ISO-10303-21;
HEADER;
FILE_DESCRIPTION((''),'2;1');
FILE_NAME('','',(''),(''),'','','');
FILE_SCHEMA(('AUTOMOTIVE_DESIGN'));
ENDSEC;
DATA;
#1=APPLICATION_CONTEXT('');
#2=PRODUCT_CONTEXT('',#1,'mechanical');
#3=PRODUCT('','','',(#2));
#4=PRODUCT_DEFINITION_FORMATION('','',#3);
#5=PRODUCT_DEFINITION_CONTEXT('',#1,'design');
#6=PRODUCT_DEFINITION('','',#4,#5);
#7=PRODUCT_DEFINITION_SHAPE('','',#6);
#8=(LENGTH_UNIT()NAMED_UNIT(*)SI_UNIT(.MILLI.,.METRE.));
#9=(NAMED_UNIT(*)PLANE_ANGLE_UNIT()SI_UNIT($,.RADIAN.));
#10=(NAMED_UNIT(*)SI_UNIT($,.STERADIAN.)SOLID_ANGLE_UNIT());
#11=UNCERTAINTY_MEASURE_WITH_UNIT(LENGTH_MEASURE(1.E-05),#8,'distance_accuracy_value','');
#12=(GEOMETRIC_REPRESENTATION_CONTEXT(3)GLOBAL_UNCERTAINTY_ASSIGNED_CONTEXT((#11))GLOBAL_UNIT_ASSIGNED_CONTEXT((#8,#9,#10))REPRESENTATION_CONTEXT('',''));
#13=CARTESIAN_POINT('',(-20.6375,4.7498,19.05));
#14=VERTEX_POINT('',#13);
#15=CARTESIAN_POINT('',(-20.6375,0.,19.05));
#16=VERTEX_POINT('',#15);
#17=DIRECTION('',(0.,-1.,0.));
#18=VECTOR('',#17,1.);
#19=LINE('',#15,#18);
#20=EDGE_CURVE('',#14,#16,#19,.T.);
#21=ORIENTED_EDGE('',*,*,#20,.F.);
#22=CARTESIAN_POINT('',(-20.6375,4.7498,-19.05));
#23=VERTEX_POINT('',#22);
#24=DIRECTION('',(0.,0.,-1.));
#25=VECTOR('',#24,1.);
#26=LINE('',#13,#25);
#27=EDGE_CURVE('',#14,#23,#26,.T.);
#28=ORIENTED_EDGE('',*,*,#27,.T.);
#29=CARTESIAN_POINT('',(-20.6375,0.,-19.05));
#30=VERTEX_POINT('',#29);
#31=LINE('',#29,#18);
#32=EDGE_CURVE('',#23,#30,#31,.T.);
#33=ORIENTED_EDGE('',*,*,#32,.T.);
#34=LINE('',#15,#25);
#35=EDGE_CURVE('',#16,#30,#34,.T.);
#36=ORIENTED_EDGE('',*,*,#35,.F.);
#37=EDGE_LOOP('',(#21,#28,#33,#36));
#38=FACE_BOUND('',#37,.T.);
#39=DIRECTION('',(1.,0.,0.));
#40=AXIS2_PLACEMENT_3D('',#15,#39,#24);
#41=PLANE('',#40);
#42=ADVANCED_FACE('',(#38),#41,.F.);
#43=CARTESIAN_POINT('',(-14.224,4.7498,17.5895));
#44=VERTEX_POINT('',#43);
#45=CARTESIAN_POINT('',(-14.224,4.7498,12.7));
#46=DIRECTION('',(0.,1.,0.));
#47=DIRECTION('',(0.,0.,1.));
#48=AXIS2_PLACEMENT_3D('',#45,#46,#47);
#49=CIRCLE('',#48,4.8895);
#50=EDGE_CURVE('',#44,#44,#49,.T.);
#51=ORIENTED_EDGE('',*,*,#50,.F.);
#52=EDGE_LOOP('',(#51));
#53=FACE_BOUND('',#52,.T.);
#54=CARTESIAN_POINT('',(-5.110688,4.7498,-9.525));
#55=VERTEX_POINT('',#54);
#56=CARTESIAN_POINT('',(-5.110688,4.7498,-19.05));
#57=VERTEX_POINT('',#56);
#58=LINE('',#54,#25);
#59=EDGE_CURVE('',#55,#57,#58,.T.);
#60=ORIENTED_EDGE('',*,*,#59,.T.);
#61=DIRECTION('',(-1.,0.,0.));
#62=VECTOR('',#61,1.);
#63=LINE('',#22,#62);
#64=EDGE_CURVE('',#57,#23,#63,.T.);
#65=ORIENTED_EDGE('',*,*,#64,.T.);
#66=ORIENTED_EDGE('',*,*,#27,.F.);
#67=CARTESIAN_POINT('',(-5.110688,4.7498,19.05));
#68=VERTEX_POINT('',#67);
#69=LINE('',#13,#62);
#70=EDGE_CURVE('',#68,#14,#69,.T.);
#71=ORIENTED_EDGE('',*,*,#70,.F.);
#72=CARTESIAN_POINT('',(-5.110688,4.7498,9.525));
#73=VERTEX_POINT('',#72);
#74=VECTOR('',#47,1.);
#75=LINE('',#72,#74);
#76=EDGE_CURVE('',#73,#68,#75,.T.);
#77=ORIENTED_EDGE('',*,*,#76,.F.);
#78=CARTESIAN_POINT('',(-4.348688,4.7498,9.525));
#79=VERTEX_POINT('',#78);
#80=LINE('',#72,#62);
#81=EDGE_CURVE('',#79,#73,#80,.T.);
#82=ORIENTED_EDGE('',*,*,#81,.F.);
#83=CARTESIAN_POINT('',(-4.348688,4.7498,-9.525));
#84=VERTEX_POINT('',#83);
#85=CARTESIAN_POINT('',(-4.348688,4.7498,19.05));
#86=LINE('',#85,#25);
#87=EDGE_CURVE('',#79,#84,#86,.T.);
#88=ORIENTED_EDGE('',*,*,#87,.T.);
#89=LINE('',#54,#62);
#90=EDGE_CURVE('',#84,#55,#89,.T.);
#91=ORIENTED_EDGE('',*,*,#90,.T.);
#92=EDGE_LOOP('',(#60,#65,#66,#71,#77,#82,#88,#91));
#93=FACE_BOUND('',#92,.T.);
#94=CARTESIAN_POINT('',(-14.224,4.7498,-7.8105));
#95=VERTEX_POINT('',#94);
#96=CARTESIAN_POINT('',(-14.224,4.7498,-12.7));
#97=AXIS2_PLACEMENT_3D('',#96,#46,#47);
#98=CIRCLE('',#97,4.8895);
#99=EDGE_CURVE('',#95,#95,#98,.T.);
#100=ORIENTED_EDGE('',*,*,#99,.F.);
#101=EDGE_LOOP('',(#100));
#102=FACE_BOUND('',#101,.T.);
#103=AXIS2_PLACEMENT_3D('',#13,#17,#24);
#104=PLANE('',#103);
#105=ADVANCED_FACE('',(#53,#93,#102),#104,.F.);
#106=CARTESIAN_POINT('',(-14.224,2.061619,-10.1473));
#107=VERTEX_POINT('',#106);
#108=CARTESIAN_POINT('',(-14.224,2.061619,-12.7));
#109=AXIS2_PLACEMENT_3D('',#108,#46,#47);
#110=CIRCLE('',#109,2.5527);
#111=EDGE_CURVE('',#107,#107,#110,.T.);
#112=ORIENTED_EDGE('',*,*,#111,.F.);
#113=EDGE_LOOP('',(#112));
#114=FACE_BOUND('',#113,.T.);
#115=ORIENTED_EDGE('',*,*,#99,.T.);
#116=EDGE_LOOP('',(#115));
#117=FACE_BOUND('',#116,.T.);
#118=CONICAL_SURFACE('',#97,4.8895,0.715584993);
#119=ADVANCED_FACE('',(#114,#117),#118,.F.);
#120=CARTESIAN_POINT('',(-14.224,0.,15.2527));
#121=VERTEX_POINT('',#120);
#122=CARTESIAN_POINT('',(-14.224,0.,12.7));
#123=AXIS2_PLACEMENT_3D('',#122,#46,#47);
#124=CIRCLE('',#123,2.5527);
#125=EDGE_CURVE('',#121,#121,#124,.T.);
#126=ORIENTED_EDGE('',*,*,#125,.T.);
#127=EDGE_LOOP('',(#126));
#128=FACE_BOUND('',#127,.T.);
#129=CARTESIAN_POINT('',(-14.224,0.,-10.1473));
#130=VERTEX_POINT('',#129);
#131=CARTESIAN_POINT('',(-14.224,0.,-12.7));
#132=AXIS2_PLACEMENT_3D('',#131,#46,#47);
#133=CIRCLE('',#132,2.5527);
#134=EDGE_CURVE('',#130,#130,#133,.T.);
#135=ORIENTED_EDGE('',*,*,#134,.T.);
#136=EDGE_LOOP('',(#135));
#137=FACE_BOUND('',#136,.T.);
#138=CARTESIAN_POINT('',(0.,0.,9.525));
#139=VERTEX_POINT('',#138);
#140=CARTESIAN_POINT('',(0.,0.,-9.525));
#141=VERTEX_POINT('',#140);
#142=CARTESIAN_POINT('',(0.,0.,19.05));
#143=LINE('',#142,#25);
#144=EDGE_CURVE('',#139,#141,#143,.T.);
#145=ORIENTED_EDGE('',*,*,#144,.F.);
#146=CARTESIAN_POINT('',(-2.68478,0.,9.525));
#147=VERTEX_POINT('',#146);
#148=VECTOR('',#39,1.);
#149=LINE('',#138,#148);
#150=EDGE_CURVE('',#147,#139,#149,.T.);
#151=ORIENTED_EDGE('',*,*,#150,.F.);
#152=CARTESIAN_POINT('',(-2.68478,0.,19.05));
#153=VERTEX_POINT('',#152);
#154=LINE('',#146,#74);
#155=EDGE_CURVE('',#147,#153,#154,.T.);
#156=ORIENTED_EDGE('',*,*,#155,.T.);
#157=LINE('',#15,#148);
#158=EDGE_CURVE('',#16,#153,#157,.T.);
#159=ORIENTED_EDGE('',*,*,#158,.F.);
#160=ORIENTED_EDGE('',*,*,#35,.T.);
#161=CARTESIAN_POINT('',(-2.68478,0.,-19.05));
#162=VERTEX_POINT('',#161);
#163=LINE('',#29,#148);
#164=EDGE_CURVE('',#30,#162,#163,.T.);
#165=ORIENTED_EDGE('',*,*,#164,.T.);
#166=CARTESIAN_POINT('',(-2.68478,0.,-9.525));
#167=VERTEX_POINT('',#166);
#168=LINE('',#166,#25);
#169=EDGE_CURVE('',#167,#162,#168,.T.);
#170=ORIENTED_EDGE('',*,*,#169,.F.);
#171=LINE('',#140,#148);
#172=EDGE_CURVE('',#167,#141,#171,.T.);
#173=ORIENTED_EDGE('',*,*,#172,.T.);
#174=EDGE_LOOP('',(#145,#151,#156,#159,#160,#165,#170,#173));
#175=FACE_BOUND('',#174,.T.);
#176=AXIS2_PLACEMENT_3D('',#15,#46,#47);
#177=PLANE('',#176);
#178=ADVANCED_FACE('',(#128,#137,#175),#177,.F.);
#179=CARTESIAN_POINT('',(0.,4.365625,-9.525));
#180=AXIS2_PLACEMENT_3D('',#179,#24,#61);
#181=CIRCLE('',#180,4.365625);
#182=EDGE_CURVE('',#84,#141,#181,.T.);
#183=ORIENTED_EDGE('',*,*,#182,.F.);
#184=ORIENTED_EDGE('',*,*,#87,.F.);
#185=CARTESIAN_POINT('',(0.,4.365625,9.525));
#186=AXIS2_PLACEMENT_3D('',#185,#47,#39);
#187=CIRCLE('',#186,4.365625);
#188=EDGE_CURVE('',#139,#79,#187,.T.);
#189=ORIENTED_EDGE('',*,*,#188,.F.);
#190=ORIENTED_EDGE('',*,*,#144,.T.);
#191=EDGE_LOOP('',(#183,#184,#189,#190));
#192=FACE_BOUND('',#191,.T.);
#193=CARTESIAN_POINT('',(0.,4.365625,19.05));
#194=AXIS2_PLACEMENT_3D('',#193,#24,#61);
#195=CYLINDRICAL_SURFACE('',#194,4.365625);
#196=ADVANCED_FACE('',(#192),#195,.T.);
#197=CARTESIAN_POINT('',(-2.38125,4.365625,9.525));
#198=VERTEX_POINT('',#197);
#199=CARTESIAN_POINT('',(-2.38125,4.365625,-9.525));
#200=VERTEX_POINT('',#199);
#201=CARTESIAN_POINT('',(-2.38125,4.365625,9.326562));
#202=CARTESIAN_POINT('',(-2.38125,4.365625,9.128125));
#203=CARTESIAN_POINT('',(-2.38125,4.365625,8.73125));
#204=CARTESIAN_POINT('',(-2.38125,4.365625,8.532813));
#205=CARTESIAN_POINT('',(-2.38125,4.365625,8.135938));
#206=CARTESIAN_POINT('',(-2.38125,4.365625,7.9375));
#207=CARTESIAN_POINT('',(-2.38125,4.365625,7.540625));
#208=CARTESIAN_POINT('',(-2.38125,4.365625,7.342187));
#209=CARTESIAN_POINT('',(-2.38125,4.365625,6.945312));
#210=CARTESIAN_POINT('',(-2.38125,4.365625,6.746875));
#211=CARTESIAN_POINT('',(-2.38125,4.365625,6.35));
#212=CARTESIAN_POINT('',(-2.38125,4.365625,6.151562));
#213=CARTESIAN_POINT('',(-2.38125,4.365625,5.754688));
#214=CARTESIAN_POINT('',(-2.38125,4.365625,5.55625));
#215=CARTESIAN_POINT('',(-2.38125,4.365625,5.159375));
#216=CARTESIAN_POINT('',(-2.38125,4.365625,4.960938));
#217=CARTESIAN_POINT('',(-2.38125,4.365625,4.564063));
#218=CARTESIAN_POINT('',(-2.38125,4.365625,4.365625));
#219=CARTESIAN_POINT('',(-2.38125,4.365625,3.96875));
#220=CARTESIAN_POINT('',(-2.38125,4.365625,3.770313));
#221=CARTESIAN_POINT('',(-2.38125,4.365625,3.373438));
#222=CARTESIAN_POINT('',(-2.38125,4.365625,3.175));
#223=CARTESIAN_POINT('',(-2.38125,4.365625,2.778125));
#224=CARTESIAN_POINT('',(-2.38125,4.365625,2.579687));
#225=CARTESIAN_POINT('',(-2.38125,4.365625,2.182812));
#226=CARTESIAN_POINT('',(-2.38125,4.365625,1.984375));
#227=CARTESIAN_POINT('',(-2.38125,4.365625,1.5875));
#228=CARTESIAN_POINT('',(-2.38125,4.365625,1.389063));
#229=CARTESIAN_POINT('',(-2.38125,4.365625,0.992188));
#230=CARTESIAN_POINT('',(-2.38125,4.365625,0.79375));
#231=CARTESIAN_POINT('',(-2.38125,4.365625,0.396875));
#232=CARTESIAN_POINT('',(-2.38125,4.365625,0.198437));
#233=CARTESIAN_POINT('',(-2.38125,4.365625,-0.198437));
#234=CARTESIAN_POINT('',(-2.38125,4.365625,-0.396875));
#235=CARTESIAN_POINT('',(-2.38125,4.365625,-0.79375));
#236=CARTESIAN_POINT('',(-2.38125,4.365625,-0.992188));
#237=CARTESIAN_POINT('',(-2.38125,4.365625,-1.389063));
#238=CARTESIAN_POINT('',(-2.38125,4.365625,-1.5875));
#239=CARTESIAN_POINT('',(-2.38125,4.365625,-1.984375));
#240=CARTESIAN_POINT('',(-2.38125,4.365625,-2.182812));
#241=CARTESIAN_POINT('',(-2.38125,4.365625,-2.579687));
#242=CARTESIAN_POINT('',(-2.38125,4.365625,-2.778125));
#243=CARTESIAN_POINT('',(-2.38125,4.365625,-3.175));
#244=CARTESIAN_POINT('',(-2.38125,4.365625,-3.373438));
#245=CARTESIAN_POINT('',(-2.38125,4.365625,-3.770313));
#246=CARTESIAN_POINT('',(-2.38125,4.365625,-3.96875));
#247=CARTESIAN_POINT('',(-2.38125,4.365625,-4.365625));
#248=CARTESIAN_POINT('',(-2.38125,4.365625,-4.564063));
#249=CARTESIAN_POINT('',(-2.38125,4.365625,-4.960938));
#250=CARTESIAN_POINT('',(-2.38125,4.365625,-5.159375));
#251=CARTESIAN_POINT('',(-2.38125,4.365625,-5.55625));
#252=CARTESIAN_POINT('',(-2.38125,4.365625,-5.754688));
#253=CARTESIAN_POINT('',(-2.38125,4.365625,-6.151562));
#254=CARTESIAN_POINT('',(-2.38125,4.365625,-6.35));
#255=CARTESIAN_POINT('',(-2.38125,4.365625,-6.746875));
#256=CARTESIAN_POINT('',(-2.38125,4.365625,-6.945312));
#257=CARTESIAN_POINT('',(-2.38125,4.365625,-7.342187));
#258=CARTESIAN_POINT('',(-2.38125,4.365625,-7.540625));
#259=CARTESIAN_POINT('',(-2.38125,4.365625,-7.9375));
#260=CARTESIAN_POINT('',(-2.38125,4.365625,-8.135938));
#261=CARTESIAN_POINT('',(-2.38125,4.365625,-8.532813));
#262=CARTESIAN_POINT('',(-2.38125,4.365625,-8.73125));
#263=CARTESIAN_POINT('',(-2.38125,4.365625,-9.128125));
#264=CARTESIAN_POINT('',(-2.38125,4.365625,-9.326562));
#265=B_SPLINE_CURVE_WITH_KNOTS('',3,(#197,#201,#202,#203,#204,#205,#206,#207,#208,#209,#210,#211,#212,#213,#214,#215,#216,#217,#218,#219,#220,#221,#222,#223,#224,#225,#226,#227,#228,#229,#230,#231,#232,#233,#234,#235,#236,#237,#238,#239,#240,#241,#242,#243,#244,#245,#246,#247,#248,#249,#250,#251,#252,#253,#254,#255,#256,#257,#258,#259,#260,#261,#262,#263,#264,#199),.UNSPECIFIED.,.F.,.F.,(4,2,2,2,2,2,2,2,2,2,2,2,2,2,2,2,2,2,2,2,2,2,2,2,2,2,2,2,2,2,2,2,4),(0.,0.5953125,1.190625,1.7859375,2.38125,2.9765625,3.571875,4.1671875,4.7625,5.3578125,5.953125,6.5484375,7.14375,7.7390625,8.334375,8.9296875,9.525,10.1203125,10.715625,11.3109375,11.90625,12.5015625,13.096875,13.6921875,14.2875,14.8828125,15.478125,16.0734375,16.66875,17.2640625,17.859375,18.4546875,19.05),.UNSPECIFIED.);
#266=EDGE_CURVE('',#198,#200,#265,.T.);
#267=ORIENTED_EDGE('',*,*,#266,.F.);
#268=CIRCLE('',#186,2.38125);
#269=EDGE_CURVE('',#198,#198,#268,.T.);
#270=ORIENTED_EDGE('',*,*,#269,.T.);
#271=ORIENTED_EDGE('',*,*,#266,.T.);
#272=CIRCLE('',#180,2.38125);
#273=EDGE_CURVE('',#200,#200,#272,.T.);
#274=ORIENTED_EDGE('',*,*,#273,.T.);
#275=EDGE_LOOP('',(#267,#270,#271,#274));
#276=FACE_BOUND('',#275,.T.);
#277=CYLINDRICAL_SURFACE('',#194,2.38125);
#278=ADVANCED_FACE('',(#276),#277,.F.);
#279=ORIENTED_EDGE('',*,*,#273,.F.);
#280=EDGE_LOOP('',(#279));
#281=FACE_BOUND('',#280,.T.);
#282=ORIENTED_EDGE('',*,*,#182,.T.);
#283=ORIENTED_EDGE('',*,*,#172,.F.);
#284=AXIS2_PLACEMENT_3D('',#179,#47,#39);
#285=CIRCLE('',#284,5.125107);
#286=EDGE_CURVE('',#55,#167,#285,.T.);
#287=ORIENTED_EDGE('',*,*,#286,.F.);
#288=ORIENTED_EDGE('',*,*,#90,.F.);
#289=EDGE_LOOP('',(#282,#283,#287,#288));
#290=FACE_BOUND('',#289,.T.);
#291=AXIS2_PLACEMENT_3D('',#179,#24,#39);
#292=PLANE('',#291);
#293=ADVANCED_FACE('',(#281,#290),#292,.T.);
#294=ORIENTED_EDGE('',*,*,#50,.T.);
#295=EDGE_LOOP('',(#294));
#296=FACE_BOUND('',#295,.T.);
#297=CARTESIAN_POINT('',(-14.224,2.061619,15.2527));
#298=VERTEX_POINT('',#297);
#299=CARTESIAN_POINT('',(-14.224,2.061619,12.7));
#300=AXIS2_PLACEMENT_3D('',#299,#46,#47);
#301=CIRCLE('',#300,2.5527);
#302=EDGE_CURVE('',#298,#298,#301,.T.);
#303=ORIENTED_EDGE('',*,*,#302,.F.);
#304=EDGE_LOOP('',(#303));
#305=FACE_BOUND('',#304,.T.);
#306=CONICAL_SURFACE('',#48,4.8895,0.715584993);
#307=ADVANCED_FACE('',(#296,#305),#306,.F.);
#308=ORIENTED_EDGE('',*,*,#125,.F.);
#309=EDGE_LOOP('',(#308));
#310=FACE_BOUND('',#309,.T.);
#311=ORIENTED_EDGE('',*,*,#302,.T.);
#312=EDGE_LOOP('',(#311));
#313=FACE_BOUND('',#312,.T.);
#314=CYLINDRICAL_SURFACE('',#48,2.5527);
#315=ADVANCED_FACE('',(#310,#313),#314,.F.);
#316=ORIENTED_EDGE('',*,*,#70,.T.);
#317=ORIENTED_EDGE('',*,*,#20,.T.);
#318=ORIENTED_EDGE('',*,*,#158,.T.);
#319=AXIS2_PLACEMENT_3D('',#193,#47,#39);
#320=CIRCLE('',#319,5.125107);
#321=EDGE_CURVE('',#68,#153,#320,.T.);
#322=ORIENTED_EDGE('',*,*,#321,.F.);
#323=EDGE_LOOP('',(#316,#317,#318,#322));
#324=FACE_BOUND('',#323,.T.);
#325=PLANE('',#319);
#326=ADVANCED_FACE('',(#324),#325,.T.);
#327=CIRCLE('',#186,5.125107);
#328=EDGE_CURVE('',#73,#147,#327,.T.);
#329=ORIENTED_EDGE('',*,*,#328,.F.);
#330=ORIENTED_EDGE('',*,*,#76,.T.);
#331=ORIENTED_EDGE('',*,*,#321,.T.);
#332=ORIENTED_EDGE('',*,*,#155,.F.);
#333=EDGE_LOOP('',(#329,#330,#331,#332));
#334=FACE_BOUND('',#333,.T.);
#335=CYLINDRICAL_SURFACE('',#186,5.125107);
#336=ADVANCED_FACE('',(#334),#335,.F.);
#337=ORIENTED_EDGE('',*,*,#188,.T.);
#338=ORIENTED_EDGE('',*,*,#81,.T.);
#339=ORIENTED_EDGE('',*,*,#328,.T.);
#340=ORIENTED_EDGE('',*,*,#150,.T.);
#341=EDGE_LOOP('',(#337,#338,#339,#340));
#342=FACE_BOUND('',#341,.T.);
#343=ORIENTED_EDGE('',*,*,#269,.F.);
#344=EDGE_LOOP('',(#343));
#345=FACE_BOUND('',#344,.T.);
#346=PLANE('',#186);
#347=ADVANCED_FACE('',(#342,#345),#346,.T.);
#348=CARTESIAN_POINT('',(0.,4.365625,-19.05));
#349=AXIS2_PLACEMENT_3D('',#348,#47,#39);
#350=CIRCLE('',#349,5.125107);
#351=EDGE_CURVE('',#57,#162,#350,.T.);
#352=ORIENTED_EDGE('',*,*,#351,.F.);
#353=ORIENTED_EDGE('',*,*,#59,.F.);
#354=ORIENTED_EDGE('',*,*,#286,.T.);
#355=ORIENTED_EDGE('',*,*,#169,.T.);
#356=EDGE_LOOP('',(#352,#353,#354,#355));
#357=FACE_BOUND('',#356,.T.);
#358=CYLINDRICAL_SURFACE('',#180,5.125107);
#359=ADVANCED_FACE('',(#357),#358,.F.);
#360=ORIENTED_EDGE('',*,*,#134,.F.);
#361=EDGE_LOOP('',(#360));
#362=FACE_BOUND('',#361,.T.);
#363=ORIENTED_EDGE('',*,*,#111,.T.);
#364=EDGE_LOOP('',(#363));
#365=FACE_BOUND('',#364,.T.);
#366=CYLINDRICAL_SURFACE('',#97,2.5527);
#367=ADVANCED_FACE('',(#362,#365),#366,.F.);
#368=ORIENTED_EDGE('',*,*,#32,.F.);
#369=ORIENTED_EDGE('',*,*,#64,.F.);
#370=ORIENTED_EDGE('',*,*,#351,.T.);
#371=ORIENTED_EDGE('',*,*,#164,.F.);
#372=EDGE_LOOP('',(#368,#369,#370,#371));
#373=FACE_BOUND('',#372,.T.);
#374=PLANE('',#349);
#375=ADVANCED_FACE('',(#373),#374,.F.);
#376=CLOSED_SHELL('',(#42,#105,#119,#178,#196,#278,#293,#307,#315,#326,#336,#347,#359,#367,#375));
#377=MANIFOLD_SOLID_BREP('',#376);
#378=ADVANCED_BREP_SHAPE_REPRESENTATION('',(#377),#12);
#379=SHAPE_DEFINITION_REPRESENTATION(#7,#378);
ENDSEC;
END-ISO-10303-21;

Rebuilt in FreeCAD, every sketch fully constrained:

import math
import FreeCAD as App
import Part
import Sketcher
from FreeCAD import Vector
Q = App.Units.Quantity


def add_polygon(sketch, points):
    """Adds a closed chain of lines whose ends are joined by coincident constraints."""
    first, n = sketch.GeometryCount, len(points)
    for a, b in zip(points, points[1:] + points[:1]):
        sketch.addGeometry(Part.LineSegment(App.Vector(*a, 0), App.Vector(*b, 0)), False)
    for i in range(n):
        sketch.addConstraint(Sketcher.Constraint("Coincident", first + i, 2, first + (i + 1) % n, 1))

doc = App.newDocument("Part")
params = doc.addObject("Spreadsheet::Sheet", "Params")
for row, (alias, value) in enumerate([
    ("sketch1_diameter", "0.1875 in"),
    ("sketch1_radius", "0.171875 in"),
    ("sketch1_width", "0.8125 in"),
    ("sketch1_height", "0.187 in"),
    ("pad1_length", "1.5 in"),
    ("sketch2_width", "0.03 in"),
    ("pocket1_length", "0.375 in"),
    ("sketch3_width", "0.187 in"),
    ("groove_angle", "360 deg"),
    ("linearpattern_pitch", "1 in"),
], start=1):
    params.set(f"A{row}", alias)
    params.set(f"B{row}", "=" + value)
    params.setAlias(f"B{row}", alias)

body = doc.addObject("PartDesign::Body", "Body")

# Sketch on XY plane
sketch1 = doc.addObject("Sketcher::SketchObject", "Sketch")
body.addObject(sketch1)
sketch1.AttachmentSupport = (doc.XY_Plane, [""])
sketch1.MapMode = "FlatFace"
sketch1.addGeometry([
    Part.LineSegment(Vector(-20.6, 0, 0), Vector(0, 0, 0)),  # 0
    Part.ArcOfCircle(Part.Circle(Vector(0, 4.4, 0), Vector(0, 0, 1), 4.4), math.radians(-90), math.radians(5)),  # 1
    Part.ArcOfCircle(Part.Circle(Vector(0, 4.4, 0), Vector(0, 0, 1), 4.4), math.radians(5), math.radians(175)),  # 2
    Part.LineSegment(Vector(-4.3, 4.7, 0), Vector(-20.6, 4.7, 0)),  # 3
    Part.LineSegment(Vector(-20.6, 4.7, 0), Vector(-20.6, 0, 0)),  # 4
    Part.Circle(Vector(0, 4.4, 0), Vector(0, 0, 1), 2.4),  # 5
], False)
sketch1.addConstraint([
    Sketcher.Constraint("Tangent", 0, 2, 1, 1),
    Sketcher.Constraint("Tangent", 1, 2, 2, 1),
    Sketcher.Constraint("Coincident", 2, 2, 3, 1),
    Sketcher.Constraint("Coincident", 3, 2, 4, 1),
    Sketcher.Constraint("Coincident", 4, 2, 0, 1),
    Sketcher.Constraint("Horizontal", 0),
    Sketcher.Constraint("Horizontal", 3),
    Sketcher.Constraint("Vertical", 4),
    Sketcher.Constraint("Coincident", 0, 2, -1, 1),
    Sketcher.Constraint("Coincident", 5, 3, 1, 3),
    Sketcher.Constraint("Equal", 1, 2),
    Sketcher.Constraint("Horizontal", 1, 2, 2, 2),
    Sketcher.Constraint("Diameter", 5, Q("0.1875 in")),
    Sketcher.Constraint("Radius", 1, Q("0.171875 in")),
    Sketcher.Constraint("DistanceX", 0, 1, 0, 2, Q("0.8125 in")),
    Sketcher.Constraint("DistanceY", 4, 2, 4, 1, Q("0.187 in")),
])
sketch1.setExpression("Constraints[12]", "Params.sketch1_diameter")
sketch1.setExpression("Constraints[13]", "Params.sketch1_radius")
sketch1.setExpression("Constraints[14]", "Params.sketch1_width")
sketch1.setExpression("Constraints[15]", "Params.sketch1_height")
pad1 = doc.addObject("PartDesign::Pad", "Pad")
body.addObject(pad1)
pad1.Profile = sketch1
pad1.setExpression("Length", "Params.pad1_length")
pad1.Midplane = True

# Sketch on XY plane
sketch2 = doc.addObject("Sketcher::SketchObject", "Sketch001")
body.addObject(sketch2)
sketch2.AttachmentSupport = (doc.XY_Plane, [""])
sketch2.MapMode = "FlatFace"
sketch2.AttachmentOffset = App.Placement(Vector(0, 0, 0.75 * 25.4), App.Rotation())
sketch2.addGeometry([
    Part.LineSegment(Vector(-4.3, 4.7, 0), Vector(-5.1, 4.7, 0)),
    Part.ArcOfCircle(Part.Circle(Vector(0, 4.4, 0), Vector(0, 0, 1), 5.1), math.radians(176), math.radians(238)),
    Part.LineSegment(Vector(-2.7, 0, 0), Vector(0, 0, 0)),
    Part.ArcOfCircle(Part.Circle(Vector(0.4, 4.7, 0), Vector(0, 0, 1), 4.8), math.radians(-95), math.radians(180)),
], False)
sketch2.addConstraint([
    Sketcher.Constraint("Coincident", 0, 2, 1, 1),
    Sketcher.Constraint("Coincident", 1, 2, 2, 1),
    Sketcher.Constraint("Coincident", 2, 2, 3, 1),
    Sketcher.Constraint("Coincident", 3, 2, 0, 1),
    Sketcher.Constraint("Horizontal", 0),
    Sketcher.Constraint("Horizontal", 2),
    Sketcher.Constraint("Coincident", 2, 2, -1, 1),
    Sketcher.Constraint("PointOnObject", 1, 3, -2),
    Sketcher.Constraint("Horizontal", 3, 3, 0, 2),
    Sketcher.Constraint("DistanceX", 0, 2, 0, 1, Q("0.03 in")),
    Sketcher.Constraint("Radius", 3, 4.768299),
    Sketcher.Constraint("DistanceX", 2, 1, 2, 2, Q("0.1057 in")),
    Sketcher.Constraint("DistanceY", -1, 1, 1, 3, Q("0.171875 in")),
])
sketch2.setExpression("Constraints[9]", "Params.sketch2_width")
pocket1 = doc.addObject("PartDesign::Pocket", "Pocket")
body.addObject(pocket1)
pocket1.Profile = sketch2
pocket1.setExpression("Length", "Params.pocket1_length")
doc.recompute()

mirrored = doc.addObject("PartDesign::Mirrored", "Mirrored")
body.addObject(mirrored)
mirrored.Originals = [pocket1]
mirrored.MirrorPlane = (doc.XY_Plane, [""])
body.Tip = mirrored

# Sketch on YZ plane
sketch3 = doc.addObject("Sketcher::SketchObject", "Sketch002")
body.addObject(sketch3)
sketch3.AttachmentSupport = (doc.YZ_Plane, [""])
sketch3.MapMode = "FlatFace"
sketch3.AttachmentOffset = App.Placement(Vector(0, 0, -0.56 * 25.4), App.Rotation())
add_polygon(sketch3, [(0, -12.7), (4.7, -12.7), (4.7, -7.8), (2.1, -10.1), (0, -10.1)])  # lines 0-4
sketch3.addGeometry(Part.LineSegment(Vector(4.7, -12.7, 0), Vector(0, -12.7, 0)), True)  # axis
sketch3.addConstraint([
    Sketcher.Constraint("Horizontal", 0),
    Sketcher.Constraint("Vertical", 1),
    Sketcher.Constraint("Horizontal", 3),
    Sketcher.Constraint("Vertical", 4),
    Sketcher.Constraint("Horizontal", 5),
    Sketcher.Constraint("Coincident", 5, 1, 0, 2),
    Sketcher.Constraint("PointOnObject", 3, 2, -2),
    Sketcher.Constraint("PointOnObject", 5, 2, -2),
    Sketcher.Constraint("Angle", 2, Q("-139 deg")),
    Sketcher.Constraint("DistanceY", 0, 2, -1, 1, Q("0.5 in")),
    Sketcher.Constraint("DistanceX", 0, 1, 0, 2, Q("0.187 in")),
    Sketcher.Constraint("DistanceY", 1, 1, 1, 2, Q("0.1925 in")),
    Sketcher.Constraint("DistanceY", 4, 2, 4, 1, Q("0.1005 in")),
])
sketch3.setExpression("Constraints[15]", "Params.sketch3_width")
groove = doc.addObject("PartDesign::Groove", "Groove")
body.addObject(groove)
groove.Profile = sketch3
groove.ReferenceAxis = (sketch3, ["Axis0"])
groove.setExpression("Angle", "Params.groove_angle")
doc.recompute()

linearpattern = doc.addObject("PartDesign::LinearPattern", "LinearPattern")
body.addObject(linearpattern)
linearpattern.Originals = [groove]
linearpattern.Direction = (doc.Z_Axis, [""])
linearpattern.Mode = "offset"
linearpattern.setExpression("Offset", "Params.linearpattern_pitch")
linearpattern.Occurrences = 2
body.Tip = linearpattern

doc.recompute()
